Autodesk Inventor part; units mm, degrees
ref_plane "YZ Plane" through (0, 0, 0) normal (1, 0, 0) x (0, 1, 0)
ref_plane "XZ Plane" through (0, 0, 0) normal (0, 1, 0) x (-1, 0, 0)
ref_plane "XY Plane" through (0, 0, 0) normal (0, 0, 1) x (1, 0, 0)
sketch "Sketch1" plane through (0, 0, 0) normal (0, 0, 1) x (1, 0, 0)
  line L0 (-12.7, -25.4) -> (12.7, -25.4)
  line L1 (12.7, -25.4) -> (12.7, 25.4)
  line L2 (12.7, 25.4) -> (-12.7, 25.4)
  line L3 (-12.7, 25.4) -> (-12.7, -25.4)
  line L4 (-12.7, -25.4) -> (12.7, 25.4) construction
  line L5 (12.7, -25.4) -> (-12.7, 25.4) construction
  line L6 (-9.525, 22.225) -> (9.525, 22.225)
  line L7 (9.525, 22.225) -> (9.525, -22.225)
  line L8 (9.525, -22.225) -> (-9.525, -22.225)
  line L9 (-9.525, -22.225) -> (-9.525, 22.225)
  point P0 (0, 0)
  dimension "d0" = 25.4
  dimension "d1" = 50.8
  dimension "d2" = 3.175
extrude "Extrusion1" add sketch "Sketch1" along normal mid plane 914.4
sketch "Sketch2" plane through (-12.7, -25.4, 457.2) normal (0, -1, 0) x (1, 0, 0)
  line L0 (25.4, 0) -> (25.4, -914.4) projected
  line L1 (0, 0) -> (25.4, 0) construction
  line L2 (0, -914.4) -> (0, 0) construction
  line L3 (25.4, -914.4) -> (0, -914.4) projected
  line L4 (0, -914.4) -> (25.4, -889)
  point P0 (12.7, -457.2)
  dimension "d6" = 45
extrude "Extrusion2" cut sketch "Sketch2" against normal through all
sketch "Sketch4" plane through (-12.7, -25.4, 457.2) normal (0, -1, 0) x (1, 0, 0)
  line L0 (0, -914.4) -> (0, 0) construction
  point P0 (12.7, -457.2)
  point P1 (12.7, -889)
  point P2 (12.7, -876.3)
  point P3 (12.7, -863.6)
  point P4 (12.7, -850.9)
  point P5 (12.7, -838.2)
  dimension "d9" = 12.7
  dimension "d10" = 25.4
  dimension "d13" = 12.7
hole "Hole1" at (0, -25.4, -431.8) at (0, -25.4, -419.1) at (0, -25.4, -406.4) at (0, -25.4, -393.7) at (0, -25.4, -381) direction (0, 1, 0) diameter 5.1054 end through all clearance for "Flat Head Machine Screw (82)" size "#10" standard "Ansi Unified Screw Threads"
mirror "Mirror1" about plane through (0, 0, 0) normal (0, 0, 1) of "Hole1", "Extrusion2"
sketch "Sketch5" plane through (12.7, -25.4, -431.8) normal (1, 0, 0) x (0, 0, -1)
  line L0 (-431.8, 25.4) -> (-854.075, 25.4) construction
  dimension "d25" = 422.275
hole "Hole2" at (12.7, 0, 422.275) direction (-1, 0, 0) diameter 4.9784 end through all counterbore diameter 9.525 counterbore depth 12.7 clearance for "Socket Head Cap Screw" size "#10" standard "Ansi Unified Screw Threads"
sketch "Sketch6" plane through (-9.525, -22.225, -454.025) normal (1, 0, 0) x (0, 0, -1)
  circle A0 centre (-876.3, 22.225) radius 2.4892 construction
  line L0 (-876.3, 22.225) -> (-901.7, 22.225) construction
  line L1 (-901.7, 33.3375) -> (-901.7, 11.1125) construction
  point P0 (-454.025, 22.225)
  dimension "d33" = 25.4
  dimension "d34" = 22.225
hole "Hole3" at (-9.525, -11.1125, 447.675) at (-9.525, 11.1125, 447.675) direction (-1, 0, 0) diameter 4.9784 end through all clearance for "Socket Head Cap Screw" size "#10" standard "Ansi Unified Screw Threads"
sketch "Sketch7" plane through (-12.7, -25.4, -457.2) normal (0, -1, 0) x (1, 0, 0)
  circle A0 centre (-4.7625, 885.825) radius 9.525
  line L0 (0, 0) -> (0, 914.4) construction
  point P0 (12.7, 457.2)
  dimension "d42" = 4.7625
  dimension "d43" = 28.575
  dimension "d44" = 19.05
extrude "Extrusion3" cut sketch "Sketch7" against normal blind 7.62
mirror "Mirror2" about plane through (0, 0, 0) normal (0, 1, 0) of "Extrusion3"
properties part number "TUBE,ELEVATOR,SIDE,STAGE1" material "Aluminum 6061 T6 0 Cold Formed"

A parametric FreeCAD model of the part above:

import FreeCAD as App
import Part
import Sketcher

V = App.Vector
Q = App.Units.Quantity

doc = App.newDocument("Part")
params = doc.addObject("Spreadsheet::Sheet", "Params")
for row, (alias, value) in enumerate([
    ("sketch1_width", "1 in"),
    ("sketch1_height", "2 in"),
    ("pad1_length", "36 in"),
    ("sketch2_width", "1 in"),
    ("sketch3_diameter", "0.201 in"),
    ("hole_diameter", "0.201 in"),
    ("sketch4_diameter", "0.196 in"),
    ("hole2_diameter", "0.196 in"),
    ("hole2_cbore_diameter", "0.375 in"),
    ("hole2_cbore_depth", "0.5 in"),
    ("sketch5_diameter", "0.196 in"),
    ("hole3_diameter", "0.196 in"),
    ("sketch6_diameter", "0.75 in"),
    ("pocket2_length", "0.3 in"),
], start=1):
    params.set(f"A{row}", alias)
    params.set(f"B{row}", "=" + value)
    params.setAlias(f"B{row}", alias)

body = doc.addObject("PartDesign::Body", "Body")

sketch1 = body.newObject("Sketcher::SketchObject", "Sketch")
sketch1.AttachmentSupport = (doc.getObject("XY_Plane"), [""])
sketch1.MapMode = "FlatFace"
sketch1.addGeometry(Part.LineSegment(V(-12.7, 25.4, 0), V(-12.7, -25.4, 0)), False)
sketch1.addGeometry(Part.LineSegment(V(-12.7, -25.4, 0), V(12.7, -25.4, 0)), False)
sketch1.addGeometry(Part.LineSegment(V(12.7, -25.4, 0), V(12.7, 25.4, 0)), False)
sketch1.addGeometry(Part.LineSegment(V(12.7, 25.4, 0), V(-12.7, 25.4, 0)), False)
sketch1.addGeometry(Part.LineSegment(V(-9.525, -22.225, 0), V(-9.525, 22.225, 0)), False)
sketch1.addGeometry(Part.LineSegment(V(-9.525, 22.225, 0), V(9.525, 22.225, 0)), False)
sketch1.addGeometry(Part.LineSegment(V(9.525, 22.225, 0), V(9.525, -22.225, 0)), False)
sketch1.addGeometry(Part.LineSegment(V(9.525, -22.225, 0), V(-9.525, -22.225, 0)), False)
sketch1.addConstraint(Sketcher.Constraint("Coincident", 0, 2, 1, 1))
sketch1.addConstraint(Sketcher.Constraint("Coincident", 1, 2, 2, 1))
sketch1.addConstraint(Sketcher.Constraint("Coincident", 2, 2, 3, 1))
sketch1.addConstraint(Sketcher.Constraint("Coincident", 3, 2, 0, 1))
sketch1.addConstraint(Sketcher.Constraint("Coincident", 4, 2, 5, 1))
sketch1.addConstraint(Sketcher.Constraint("Coincident", 5, 2, 6, 1))
sketch1.addConstraint(Sketcher.Constraint("Coincident", 6, 2, 7, 1))
sketch1.addConstraint(Sketcher.Constraint("Coincident", 7, 2, 4, 1))
sketch1.addConstraint(Sketcher.Constraint("Vertical", 0))
sketch1.addConstraint(Sketcher.Constraint("Horizontal", 1))
sketch1.addConstraint(Sketcher.Constraint("Vertical", 2))
sketch1.addConstraint(Sketcher.Constraint("Horizontal", 3))
sketch1.addConstraint(Sketcher.Constraint("Vertical", 4))
sketch1.addConstraint(Sketcher.Constraint("Horizontal", 5))
sketch1.addConstraint(Sketcher.Constraint("Vertical", 6))
sketch1.addConstraint(Sketcher.Constraint("Horizontal", 7))
sketch1.addConstraint(Sketcher.Constraint("Symmetric", 0, 2, 2, 2, -1, 1))
sketch1.addConstraint(Sketcher.Constraint("Symmetric", 4, 2, 6, 2, -1, 1))
sketch1.addConstraint(Sketcher.Constraint("DistanceX", 1, 1, 1, 2, Q("1 in")))
sketch1.addConstraint(Sketcher.Constraint("DistanceY", 0, 2, 0, 1, Q("2 in")))
sketch1.addConstraint(Sketcher.Constraint("DistanceX", 3, 2, 4, 2, Q("0.125 in")))
sketch1.addConstraint(Sketcher.Constraint("DistanceY", 4, 2, 3, 2, Q("0.125 in")))
sketch1.setExpression("Constraints[18]", "Params.sketch1_width")
sketch1.setExpression("Constraints[19]", "Params.sketch1_height")
pad1 = body.newObject("PartDesign::Pad", "Pad")
pad1.Profile = sketch1
pad1.setExpression("Length", "Params.pad1_length")
pad1.Midplane = True

sketch2 = body.newObject("Sketcher::SketchObject", "Sketch001")
sketch2.AttachmentSupport = (doc.getObject("XZ_Plane"), [""])
sketch2.MapMode = "FlatFace"
sketch2.AttachmentOffset = App.Placement(V(0, 0, 1 * 25.4), App.Rotation())
sketch2.addGeometry(Part.LineSegment(V(12.7, -457.2, 0), V(12.7, -431.8, 0)), False)
sketch2.addGeometry(Part.LineSegment(V(12.7, -431.8, 0), V(-12.7, -457.2, 0)), False)
sketch2.addGeometry(Part.LineSegment(V(-12.7, -457.2, 0), V(12.7, -457.2, 0)), False)
sketch2.addConstraint(Sketcher.Constraint("Coincident", 0, 2, 1, 1))
sketch2.addConstraint(Sketcher.Constraint("Coincident", 1, 2, 2, 1))
sketch2.addConstraint(Sketcher.Constraint("Coincident", 2, 2, 0, 1))
sketch2.addConstraint(Sketcher.Constraint("Vertical", 0))
sketch2.addConstraint(Sketcher.Constraint("Horizontal", 2))
sketch2.addConstraint(Sketcher.Constraint("Equal", 2, 0))
sketch2.addConstraint(Sketcher.Constraint("DistanceX", 2, 1, 2, 2, Q("1 in")))
sketch2.addConstraint(Sketcher.Constraint("DistanceY", 0, 2, -1, 1, Q("17 in")))
sketch2.addConstraint(Sketcher.Constraint("DistanceX", -1, 1, 0, 2, Q("0.5 in")))
sketch2.setExpression("Constraints[6]", "Params.sketch2_width")
pocket1 = body.newObject("PartDesign::Pocket", "Pocket")
pocket1.Profile = sketch2
pocket1.Type = "ThroughAll"

sketch3 = body.newObject("Sketcher::SketchObject", "Sketch002")
sketch3.AttachmentSupport = (doc.getObject("XZ_Plane"), [""])
sketch3.MapMode = "FlatFace"
sketch3.AttachmentOffset = App.Placement(V(0, 0, 1 * 25.4), App.Rotation())
sketch3.addGeometry(Part.Circle(V(0, -431.8, 0), V(0, 0, 1), 2.5527), False)
sketch3.addGeometry(Part.Circle(V(0, -419.1, 0), V(0, 0, 1), 2.5527), False)
sketch3.addGeometry(Part.Circle(V(0, -406.4, 0), V(0, 0, 1), 2.5527), False)
sketch3.addGeometry(Part.Circle(V(0, -393.7, 0), V(0, 0, 1), 2.5527), False)
sketch3.addGeometry(Part.Circle(V(0, -381, 0), V(0, 0, 1), 2.5527), False)
sketch3.addConstraint(Sketcher.Constraint("Equal", 0, 1))
sketch3.addConstraint(Sketcher.Constraint("Equal", 1, 2))
sketch3.addConstraint(Sketcher.Constraint("Equal", 2, 3))
sketch3.addConstraint(Sketcher.Constraint("Equal", 3, 4))
sketch3.addConstraint(Sketcher.Constraint("PointOnObject", 0, 3, -2))
sketch3.addConstraint(Sketcher.Constraint("PointOnObject", 1, 3, -2))
sketch3.addConstraint(Sketcher.Constraint("PointOnObject", 2, 3, -2))
sketch3.addConstraint(Sketcher.Constraint("PointOnObject", 3, 3, -2))
sketch3.addConstraint(Sketcher.Constraint("PointOnObject", 4, 3, -2))
sketch3.addConstraint(Sketcher.Constraint("Diameter", 0, Q("0.201 in")))
sketch3.addConstraint(Sketcher.Constraint("DistanceY", 0, 3, -1, 1, Q("17 in")))
sketch3.addConstraint(Sketcher.Constraint("DistanceY", 2, 3, -1, 1, Q("16 in")))
sketch3.addConstraint(Sketcher.Constraint("DistanceY", 4, 3, -1, 1, Q("15 in")))
sketch3.addConstraint(Sketcher.Constraint("DistanceY", 1, 3, 3, 3, Q("1 in")))
sketch3.addConstraint(Sketcher.Constraint("DistanceY", 1, 3, -1, 1, Q("16.5 in")))
sketch3.setExpression("Constraints[9]", "Params.sketch3_diameter")
doc.recompute()
hole = body.newObject("PartDesign::Hole", "Hole")
hole.Profile = sketch3
hole.ThreadType = "None"
hole.setExpression("Diameter", "Params.hole_diameter")
hole.DepthType = "ThroughAll"
doc.recompute()

mirrored = body.newObject("PartDesign::Mirrored", "Mirrored")
mirrored.Originals = [hole, pocket1]
mirrored.MirrorPlane = (doc.getObject("XY_Plane"), [""])
body.Tip = mirrored

sketch4 = body.newObject("Sketcher::SketchObject", "Sketch003")
sketch4.AttachmentSupport = (doc.getObject("YZ_Plane"), [""])
sketch4.MapMode = "FlatFace"
sketch4.AttachmentOffset = App.Placement(V(0, 0, 0.5 * 25.4), App.Rotation())
sketch4.addGeometry(Part.Circle(V(0, 422.275, 0), V(0, 0, 1), 2.4892), False)
sketch4.addConstraint(Sketcher.Constraint("PointOnObject", 0, 3, -2))
sketch4.addConstraint(Sketcher.Constraint("Diameter", 0, Q("0.196 in")))
sketch4.addConstraint(Sketcher.Constraint("DistanceY", -1, 1, 0, 3, Q("16.625 in")))
sketch4.setExpression("Constraints[1]", "Params.sketch4_diameter")
doc.recompute()
hole2 = body.newObject("PartDesign::Hole", "Hole001")
hole2.Profile = sketch4
hole2.ThreadType = "None"
hole2.setExpression("Diameter", "Params.hole2_diameter")
hole2.DepthType = "ThroughAll"
hole2.HoleCutType = "Counterbore"
hole2.setExpression("HoleCutDiameter", "Params.hole2_cbore_diameter")
hole2.setExpression("HoleCutDepth", "Params.hole2_cbore_depth")

sketch5 = body.newObject("Sketcher::SketchObject", "Sketch004")
sketch5.AttachmentSupport = (doc.getObject("YZ_Plane"), [""])
sketch5.MapMode = "FlatFace"
sketch5.AttachmentOffset = App.Placement(V(0, 0, -0.375 * 25.4), App.Rotation())
sketch5.addGeometry(Part.Circle(V(-11.1125, 447.675, 0), V(0, 0, 1), 2.4892), False)
sketch5.addGeometry(Part.Circle(V(11.1125, 447.675, 0), V(0, 0, 1), 2.4892), False)
sketch5.addConstraint(Sketcher.Constraint("Equal", 0, 1))
sketch5.addConstraint(Sketcher.Constraint("Symmetric", 0, 3, 1, 3, -2))
sketch5.addConstraint(Sketcher.Constraint("Diameter", 0, Q("0.196 in")))
sketch5.addConstraint(Sketcher.Constraint("DistanceX", 0, 3, -1, 1, Q("0.4375 in")))
sketch5.addConstraint(Sketcher.Constraint("DistanceY", -1, 1, 0, 3, Q("17.625 in")))
sketch5.setExpression("Constraints[2]", "Params.sketch5_diameter")
doc.recompute()
hole3 = body.newObject("PartDesign::Hole", "Hole002")
hole3.Profile = sketch5
hole3.ThreadType = "None"
hole3.setExpression("Diameter", "Params.hole3_diameter")
hole3.DepthType = "ThroughAll"

sketch6 = body.newObject("Sketcher::SketchObject", "Sketch005")
sketch6.AttachmentSupport = (doc.getObject("XZ_Plane"), [""])
sketch6.MapMode = "FlatFace"
sketch6.AttachmentOffset = App.Placement(V(0, 0, 1 * 25.4), App.Rotation())
sketch6.addGeometry(Part.Circle(V(-17.4625, 428.625, 0), V(0, 0, 1), 9.525), False)
sketch6.addConstraint(Sketcher.Constraint("Diameter", 0, Q("0.75 in")))
sketch6.addConstraint(Sketcher.Constraint("DistanceX", 0, 3, -1, 1, Q("0.6875 in")))
sketch6.addConstraint(Sketcher.Constraint("DistanceY", -1, 1, 0, 3, Q("16.875 in")))
sketch6.setExpression("Constraints[0]", "Params.sketch6_diameter")
pocket2 = body.newObject("PartDesign::Pocket", "Pocket001")
pocket2.Profile = sketch6
pocket2.setExpression("Length", "Params.pocket2_length")
doc.recompute()

mirrored2 = body.newObject("PartDesign::Mirrored", "Mirrored001")
mirrored2.Originals = [pocket2]
mirrored2.MirrorPlane = (doc.getObject("XZ_Plane"), [""])
body.Tip = mirrored2

doc.recompute()
